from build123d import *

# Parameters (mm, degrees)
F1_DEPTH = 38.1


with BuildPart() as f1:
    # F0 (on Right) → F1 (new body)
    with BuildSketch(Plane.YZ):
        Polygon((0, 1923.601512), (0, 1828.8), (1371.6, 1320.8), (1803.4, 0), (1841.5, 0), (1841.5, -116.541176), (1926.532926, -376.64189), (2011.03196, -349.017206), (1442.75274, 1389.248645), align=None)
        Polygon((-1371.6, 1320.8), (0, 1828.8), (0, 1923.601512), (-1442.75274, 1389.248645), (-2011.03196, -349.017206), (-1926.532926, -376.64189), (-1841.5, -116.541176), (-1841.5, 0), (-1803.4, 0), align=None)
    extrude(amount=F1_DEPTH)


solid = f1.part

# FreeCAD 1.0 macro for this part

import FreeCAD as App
import Part
import Sketcher
from FreeCAD import Vector
Q = App.Units.Quantity


def add_polygon(sketch, points):
    """Adds a closed chain of lines whose ends are joined by coincident constraints."""
    first, n = sketch.GeometryCount, len(points)
    for a, b in zip(points, points[1:] + points[:1]):
        sketch.addGeometry(Part.LineSegment(App.Vector(*a, 0), App.Vector(*b, 0)), False)
    for i in range(n):
        sketch.addConstraint(Sketcher.Constraint("Coincident", first + i, 2, first + (i + 1) % n, 1))

doc = App.newDocument("Part")
body = doc.addObject("PartDesign::Body", "Body")

# Sketch on YZ plane
sketch1 = body.newObject("Sketcher::SketchObject", "Sketch")
sketch1.AttachmentSupport = (doc.getObject("YZ_Plane"), [""])
sketch1.MapMode = "FlatFace"
add_polygon(sketch1, [(0, 1829), (1372, 1321), (1803, 0), (1842, 0), (1842, -117), (1927, -377), (2011, -349), (1443, 1389), (0, 1924), (-1443, 1389), (-2011, -349), (-1927, -377), (-1842, -117), (-1842, 0), (-1803, 0), (-1372, 1321)])  # lines 0-15
sketch1.addConstraint(Sketcher.Constraint("Horizontal", 2))
sketch1.addConstraint(Sketcher.Constraint("Vertical", 3))
sketch1.addConstraint(Sketcher.Constraint("Vertical", 12))
sketch1.addConstraint(Sketcher.Constraint("Horizontal", 13))
sketch1.addConstraint(Sketcher.Constraint("Symmetric", 2, 2, 12, 2, -1, 1))
sketch1.addConstraint(Sketcher.Constraint("Symmetric", 6, 2, 8, 2, -2))
sketch1.addConstraint(Sketcher.Constraint("Symmetric", 5, 2, 9, 2, -2))
sketch1.addConstraint(Sketcher.Constraint("Symmetric", 4, 2, 10, 2, -2))
sketch1.addConstraint(Sketcher.Constraint("Symmetric", 1, 2, 13, 2, -2))
sketch1.addConstraint(Sketcher.Constraint("Symmetric", 0, 2, 14, 2, -2))
sketch1.addConstraint(Sketcher.Constraint("PointOnObject", 7, 2, -2))
sketch1.addConstraint(Sketcher.Constraint("PointOnObject", 15, 2, -2))
sketch1.addConstraint(Sketcher.Constraint("Parallel", 1, 4))
sketch1.addConstraint(Sketcher.Constraint("Perpendicular", 4, 5))
sketch1.addConstraint(Sketcher.Constraint("Perpendicular", 5, 6))
sketch1.addConstraint(Sketcher.Constraint("Parallel", 0, 7))
sketch1.addConstraint(Sketcher.Constraint("Perpendicular", 10, 11))
sketch1.addConstraint(Sketcher.Constraint("Distance", 6, Q("72 in")))
sketch1.addConstraint(Sketcher.Constraint("DistanceX", 2, 1, 2, 2, Q("1.5 in")))
sketch1.addConstraint(Sketcher.Constraint("DistanceX", -1, 1, 0, 2, Q("54 in")))
sketch1.addConstraint(Sketcher.Constraint("DistanceY", -1, 1, 0, 2, Q("52 in")))
sketch1.addConstraint(Sketcher.Constraint("DistanceX", -1, 1, 1, 2, Q("71 in")))
sketch1.addConstraint(Sketcher.Constraint("DistanceY", -1, 1, 15, 2, Q("72 in")))
sketch1.addConstraint(Sketcher.Constraint("Distance", 5, Q("3.5 in")))
sketch1.addConstraint(Sketcher.Constraint("DistanceY", 3, 2, 3, 1, Q("116.541176 mm")))
sketch1.addConstraint(Sketcher.Constraint("DistanceY", 4, 2, -1, 1, Q("376.64189 mm")))
pad1 = body.newObject("PartDesign::Pad", "Pad")
pad1.Profile = sketch1
pad1.Length = Q("1.5 in")

doc.recompute()
